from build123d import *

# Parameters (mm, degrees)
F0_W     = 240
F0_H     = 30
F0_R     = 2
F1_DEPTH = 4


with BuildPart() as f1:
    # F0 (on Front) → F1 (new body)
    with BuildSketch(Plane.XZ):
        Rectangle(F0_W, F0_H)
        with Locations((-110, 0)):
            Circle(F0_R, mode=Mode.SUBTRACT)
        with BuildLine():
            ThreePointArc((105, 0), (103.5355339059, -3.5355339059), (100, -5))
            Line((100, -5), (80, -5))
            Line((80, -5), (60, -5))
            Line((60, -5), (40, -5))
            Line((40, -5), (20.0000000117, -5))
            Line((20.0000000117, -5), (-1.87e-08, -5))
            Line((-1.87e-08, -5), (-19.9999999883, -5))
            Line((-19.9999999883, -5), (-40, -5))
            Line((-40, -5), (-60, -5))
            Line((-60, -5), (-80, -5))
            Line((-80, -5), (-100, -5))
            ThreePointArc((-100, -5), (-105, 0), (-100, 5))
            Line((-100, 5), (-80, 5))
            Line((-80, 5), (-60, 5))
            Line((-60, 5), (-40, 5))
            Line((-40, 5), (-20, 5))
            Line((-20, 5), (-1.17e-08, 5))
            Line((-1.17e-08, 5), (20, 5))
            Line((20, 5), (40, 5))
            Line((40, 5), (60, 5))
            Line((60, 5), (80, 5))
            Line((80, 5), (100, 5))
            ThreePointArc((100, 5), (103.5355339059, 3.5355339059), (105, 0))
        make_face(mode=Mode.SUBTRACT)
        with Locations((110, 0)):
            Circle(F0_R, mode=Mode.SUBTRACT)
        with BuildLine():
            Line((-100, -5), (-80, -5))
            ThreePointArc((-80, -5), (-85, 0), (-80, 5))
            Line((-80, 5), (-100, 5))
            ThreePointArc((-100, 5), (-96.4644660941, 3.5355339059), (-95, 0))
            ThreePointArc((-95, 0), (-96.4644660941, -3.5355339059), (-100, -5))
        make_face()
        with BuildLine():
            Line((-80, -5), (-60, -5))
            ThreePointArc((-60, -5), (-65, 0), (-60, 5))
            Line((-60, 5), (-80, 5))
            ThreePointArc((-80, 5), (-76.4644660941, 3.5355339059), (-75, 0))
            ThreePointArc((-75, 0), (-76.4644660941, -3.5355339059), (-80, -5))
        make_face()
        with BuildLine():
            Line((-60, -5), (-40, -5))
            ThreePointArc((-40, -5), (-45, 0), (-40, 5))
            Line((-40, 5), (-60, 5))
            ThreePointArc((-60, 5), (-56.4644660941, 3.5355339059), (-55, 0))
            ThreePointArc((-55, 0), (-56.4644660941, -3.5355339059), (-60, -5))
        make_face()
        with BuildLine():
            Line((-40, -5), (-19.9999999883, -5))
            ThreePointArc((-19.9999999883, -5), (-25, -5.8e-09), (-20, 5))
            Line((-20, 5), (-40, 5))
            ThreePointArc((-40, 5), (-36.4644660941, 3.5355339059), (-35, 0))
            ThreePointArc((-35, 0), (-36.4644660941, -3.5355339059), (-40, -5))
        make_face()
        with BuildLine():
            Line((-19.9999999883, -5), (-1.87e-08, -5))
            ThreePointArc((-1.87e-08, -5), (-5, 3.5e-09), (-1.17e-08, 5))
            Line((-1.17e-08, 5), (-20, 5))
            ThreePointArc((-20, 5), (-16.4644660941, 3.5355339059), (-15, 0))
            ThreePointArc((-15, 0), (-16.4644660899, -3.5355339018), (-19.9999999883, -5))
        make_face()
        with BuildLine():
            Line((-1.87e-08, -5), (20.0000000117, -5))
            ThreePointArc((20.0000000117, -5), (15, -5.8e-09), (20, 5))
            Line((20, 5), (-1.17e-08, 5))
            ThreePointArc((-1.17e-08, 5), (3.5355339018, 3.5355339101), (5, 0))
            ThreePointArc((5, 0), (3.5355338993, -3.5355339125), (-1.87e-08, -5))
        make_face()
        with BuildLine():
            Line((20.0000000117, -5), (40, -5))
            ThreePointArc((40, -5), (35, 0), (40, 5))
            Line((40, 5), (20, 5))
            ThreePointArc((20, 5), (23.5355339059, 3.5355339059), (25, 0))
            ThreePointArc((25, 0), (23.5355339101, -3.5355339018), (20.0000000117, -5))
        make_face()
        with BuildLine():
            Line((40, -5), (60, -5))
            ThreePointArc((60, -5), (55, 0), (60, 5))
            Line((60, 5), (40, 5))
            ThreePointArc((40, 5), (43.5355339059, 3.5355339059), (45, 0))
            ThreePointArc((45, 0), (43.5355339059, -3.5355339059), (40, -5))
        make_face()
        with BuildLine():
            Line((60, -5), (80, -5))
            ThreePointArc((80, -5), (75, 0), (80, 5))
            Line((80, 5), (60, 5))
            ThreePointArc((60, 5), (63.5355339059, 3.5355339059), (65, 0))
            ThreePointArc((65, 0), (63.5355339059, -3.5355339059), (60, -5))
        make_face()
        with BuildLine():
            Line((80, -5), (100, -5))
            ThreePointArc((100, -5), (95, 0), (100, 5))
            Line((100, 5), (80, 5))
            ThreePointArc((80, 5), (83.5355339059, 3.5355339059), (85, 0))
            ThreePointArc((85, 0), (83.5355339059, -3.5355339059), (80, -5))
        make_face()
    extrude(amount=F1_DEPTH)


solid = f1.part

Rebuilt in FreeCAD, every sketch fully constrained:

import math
import FreeCAD as App
import Part
import Sketcher

doc = App.newDocument("Part")
body = doc.addObject("PartDesign::Body", "Body")

sketch1 = body.newObject("Sketcher::SketchObject", "Sketch")
sketch1.AttachmentSupport = (doc.getObject("XZ_Plane"), [""])
sketch1.MapMode = "FlatFace"
sketch1.addGeometry(Part.LineSegment(App.Vector(-120, 15, 0), App.Vector(-120, -15, 0)), False)
sketch1.addGeometry(Part.LineSegment(App.Vector(-120, -15, 0), App.Vector(120, -15, 0)), False)
sketch1.addGeometry(Part.LineSegment(App.Vector(120, -15, 0), App.Vector(120, 15, 0)), False)
sketch1.addGeometry(Part.LineSegment(App.Vector(120, 15, 0), App.Vector(-120, 15, 0)), False)
sketch1.addGeometry(Part.Circle(App.Vector(-110, 0, 0), App.Vector(0, 0, 1), 2), False)
sketch1.addGeometry(Part.ArcOfCircle(Part.Circle(App.Vector(100, 0, 0), App.Vector(0, 0, 1), 5), math.radians(0), math.radians(90)), False)
sketch1.addGeometry(Part.ArcOfCircle(Part.Circle(App.Vector(100, 0, 0), App.Vector(0, 0, 1), 5), math.radians(-90), math.radians(0)), False)
sketch1.addGeometry(Part.ArcOfCircle(Part.Circle(App.Vector(100, 0, 0), App.Vector(0, 0, 1), 5), math.radians(90), math.radians(270)), False)
sketch1.addGeometry(Part.ArcOfCircle(Part.Circle(App.Vector(80, 0, 0), App.Vector(0, 0, 1), 5), math.radians(90), math.radians(270)), False)
sketch1.addGeometry(Part.ArcOfCircle(Part.Circle(App.Vector(80, 0, 0), App.Vector(0, 0, 1), 5), math.radians(0), math.radians(90)), False)
sketch1.addGeometry(Part.ArcOfCircle(Part.Circle(App.Vector(80, 0, 0), App.Vector(0, 0, 1), 5), math.radians(-90), math.radians(0)), False)
sketch1.addGeometry(Part.ArcOfCircle(Part.Circle(App.Vector(60, 0, 0), App.Vector(0, 0, 1), 5), math.radians(90), math.radians(270)), False)
sketch1.addGeometry(Part.ArcOfCircle(Part.Circle(App.Vector(60, 0, 0), App.Vector(0, 0, 1), 5), math.radians(0), math.radians(90)), False)
sketch1.addGeometry(Part.ArcOfCircle(Part.Circle(App.Vector(60, 0, 0), App.Vector(0, 0, 1), 5), math.radians(-90), math.radians(0)), False)
sketch1.addGeometry(Part.ArcOfCircle(Part.Circle(App.Vector(40, 0, 0), App.Vector(0, 0, 1), 5), math.radians(90), math.radians(270)), False)
sketch1.addGeometry(Part.ArcOfCircle(Part.Circle(App.Vector(40, 0, 0), App.Vector(0, 0, 1), 5), math.radians(0), math.radians(90)), False)
sketch1.addGeometry(Part.ArcOfCircle(Part.Circle(App.Vector(40, 0, 0), App.Vector(0, 0, 1), 5), math.radians(-90), math.radians(0)), False)
sketch1.addGeometry(Part.ArcOfCircle(Part.Circle(App.Vector(20, 0, 0), App.Vector(0, 0, 1), 5), math.radians(90), math.radians(270)), False)
sketch1.addGeometry(Part.ArcOfCircle(Part.Circle(App.Vector(20, 0, 0), App.Vector(0, 0, 1), 5), math.radians(0), math.radians(90)), False)
sketch1.addGeometry(Part.ArcOfCircle(Part.Circle(App.Vector(20, 0, 0), App.Vector(0, 0, 1), 5), math.radians(-90), math.radians(0)), False)
sketch1.addGeometry(Part.ArcOfCircle(Part.Circle(App.Vector(0, 0, 0), App.Vector(0, 0, 1), 5), math.radians(90), math.radians(270)), False)
sketch1.addGeometry(Part.ArcOfCircle(Part.Circle(App.Vector(0, 0, 0), App.Vector(0, 0, 1), 5), math.radians(0), math.radians(90)), False)
sketch1.addGeometry(Part.ArcOfCircle(Part.Circle(App.Vector(0, 0, 0), App.Vector(0, 0, 1), 5), math.radians(-90), math.radians(0)), False)
sketch1.addGeometry(Part.ArcOfCircle(Part.Circle(App.Vector(-20, 0, 0), App.Vector(0, 0, 1), 5), math.radians(90), math.radians(270)), False)
sketch1.addGeometry(Part.ArcOfCircle(Part.Circle(App.Vector(-20, 0, 0), App.Vector(0, 0, 1), 5), math.radians(0), math.radians(90)), False)
sketch1.addGeometry(Part.ArcOfCircle(Part.Circle(App.Vector(-20, 0, 0), App.Vector(0, 0, 1), 5), math.radians(-90), math.radians(0)), False)
sketch1.addGeometry(Part.ArcOfCircle(Part.Circle(App.Vector(-40, 0, 0), App.Vector(0, 0, 1), 5), math.radians(90), math.radians(270)), False)
sketch1.addGeometry(Part.ArcOfCircle(Part.Circle(App.Vector(-40, 0, 0), App.Vector(0, 0, 1), 5), math.radians(0), math.radians(90)), False)
sketch1.addGeometry(Part.ArcOfCircle(Part.Circle(App.Vector(-40, 0, 0), App.Vector(0, 0, 1), 5), math.radians(-90), math.radians(0)), False)
sketch1.addGeometry(Part.ArcOfCircle(Part.Circle(App.Vector(-60, 0, 0), App.Vector(0, 0, 1), 5), math.radians(90), math.radians(270)), False)
sketch1.addGeometry(Part.ArcOfCircle(Part.Circle(App.Vector(-60, 0, 0), App.Vector(0, 0, 1), 5), math.radians(0), math.radians(90)), False)
sketch1.addGeometry(Part.ArcOfCircle(Part.Circle(App.Vector(-60, 0, 0), App.Vector(0, 0, 1), 5), math.radians(-90), math.radians(0)), False)
sketch1.addGeometry(Part.ArcOfCircle(Part.Circle(App.Vector(-80, 0, 0), App.Vector(0, 0, 1), 5), math.radians(90), math.radians(270)), False)
sketch1.addGeometry(Part.ArcOfCircle(Part.Circle(App.Vector(-80, 0, 0), App.Vector(0, 0, 1), 5), math.radians(0), math.radians(90)), False)
sketch1.addGeometry(Part.ArcOfCircle(Part.Circle(App.Vector(-80, 0, 0), App.Vector(0, 0, 1), 5), math.radians(-90), math.radians(0)), False)
sketch1.addGeometry(Part.ArcOfCircle(Part.Circle(App.Vector(-100, 0, 0), App.Vector(0, 0, 1), 5), math.radians(90), math.radians(270)), False)
sketch1.addGeometry(Part.ArcOfCircle(Part.Circle(App.Vector(-100, 0, 0), App.Vector(0, 0, 1), 5), math.radians(0), math.radians(90)), False)
sketch1.addGeometry(Part.ArcOfCircle(Part.Circle(App.Vector(-100, 0, 0), App.Vector(0, 0, 1), 5), math.radians(-90), math.radians(0)), False)
sketch1.addGeometry(Part.Circle(App.Vector(110, 0, 0), App.Vector(0, 0, 1), 2), False)
sketch1.addConstraint(Sketcher.Constraint("Coincident", 0, 2, 1, 1))
sketch1.addConstraint(Sketcher.Constraint("Coincident", 1, 2, 2, 1))
sketch1.addConstraint(Sketcher.Constraint("Coincident", 2, 2, 3, 1))
sketch1.addConstraint(Sketcher.Constraint("Coincident", 3, 2, 0, 1))
sketch1.addConstraint(Sketcher.Constraint("Tangent", 5, 1, 6, 2))
sketch1.addConstraint(Sketcher.Constraint("Tangent", 6, 1, 7, 2))
sketch1.addConstraint(Sketcher.Constraint("Tangent", 7, 1, 5, 2))
sketch1.addConstraint(Sketcher.Constraint("Tangent", 8, 1, 9, 2))
sketch1.addConstraint(Sketcher.Constraint("Tangent", 9, 1, 10, 2))
sketch1.addConstraint(Sketcher.Constraint("Tangent", 10, 1, 8, 2))
sketch1.addConstraint(Sketcher.Constraint("Tangent", 11, 1, 12, 2))
sketch1.addConstraint(Sketcher.Constraint("Tangent", 12, 1, 13, 2))
sketch1.addConstraint(Sketcher.Constraint("Tangent", 13, 1, 11, 2))
sketch1.addConstraint(Sketcher.Constraint("Tangent", 14, 1, 15, 2))
sketch1.addConstraint(Sketcher.Constraint("Tangent", 15, 1, 16, 2))
sketch1.addConstraint(Sketcher.Constraint("Tangent", 16, 1, 14, 2))
sketch1.addConstraint(Sketcher.Constraint("Tangent", 17, 1, 18, 2))
sketch1.addConstraint(Sketcher.Constraint("Tangent", 18, 1, 19, 2))
sketch1.addConstraint(Sketcher.Constraint("Tangent", 19, 1, 17, 2))
sketch1.addConstraint(Sketcher.Constraint("Tangent", 20, 1, 21, 2))
sketch1.addConstraint(Sketcher.Constraint("Tangent", 21, 1, 22, 2))
sketch1.addConstraint(Sketcher.Constraint("Tangent", 22, 1, 20, 2))
sketch1.addConstraint(Sketcher.Constraint("Tangent", 23, 1, 24, 2))
sketch1.addConstraint(Sketcher.Constraint("Tangent", 24, 1, 25, 2))
sketch1.addConstraint(Sketcher.Constraint("Tangent", 25, 1, 23, 2))
sketch1.addConstraint(Sketcher.Constraint("Tangent", 26, 1, 27, 2))
sketch1.addConstraint(Sketcher.Constraint("Tangent", 27, 1, 28, 2))
sketch1.addConstraint(Sketcher.Constraint("Tangent", 28, 1, 26, 2))
sketch1.addConstraint(Sketcher.Constraint("Tangent", 29, 1, 30, 2))
sketch1.addConstraint(Sketcher.Constraint("Tangent", 30, 1, 31, 2))
sketch1.addConstraint(Sketcher.Constraint("Tangent", 31, 1, 29, 2))
sketch1.addConstraint(Sketcher.Constraint("Tangent", 32, 1, 33, 2))
sketch1.addConstraint(Sketcher.Constraint("Tangent", 33, 1, 34, 2))
sketch1.addConstraint(Sketcher.Constraint("Tangent", 34, 1, 32, 2))
sketch1.addConstraint(Sketcher.Constraint("Tangent", 35, 1, 36, 2))
sketch1.addConstraint(Sketcher.Constraint("Tangent", 36, 1, 37, 2))
sketch1.addConstraint(Sketcher.Constraint("Tangent", 37, 1, 35, 2))
sketch1.addConstraint(Sketcher.Constraint("Vertical", 0))
sketch1.addConstraint(Sketcher.Constraint("Horizontal", 1))
sketch1.addConstraint(Sketcher.Constraint("Vertical", 2))
sketch1.addConstraint(Sketcher.Constraint("Horizontal", 3))
sketch1.addConstraint(Sketcher.Constraint("Coincident", 20, 3, -1, 1))
sketch1.addConstraint(Sketcher.Constraint("Equal", 7, 8))
sketch1.addConstraint(Sketcher.Constraint("Equal", 10, 11))
sketch1.addConstraint(Sketcher.Constraint("Equal", 13, 14))
sketch1.addConstraint(Sketcher.Constraint("Equal", 16, 17))
sketch1.addConstraint(Sketcher.Constraint("Equal", 19, 20))
sketch1.addConstraint(Sketcher.Constraint("Equal", 22, 23))
sketch1.addConstraint(Sketcher.Constraint("Equal", 25, 26))
sketch1.addConstraint(Sketcher.Constraint("Equal", 28, 29))
sketch1.addConstraint(Sketcher.Constraint("Equal", 31, 32))
sketch1.addConstraint(Sketcher.Constraint("Equal", 34, 35))
sketch1.addConstraint(Sketcher.Constraint("Equal", 4, 38))
sketch1.addConstraint(Sketcher.Constraint("Symmetric", 17, 3, 23, 3, -1, 1))
sketch1.addConstraint(Sketcher.Constraint("Symmetric", 14, 3, 26, 3, -1, 1))
sketch1.addConstraint(Sketcher.Constraint("Symmetric", 11, 3, 29, 3, -1, 1))
sketch1.addConstraint(Sketcher.Constraint("Symmetric", 8, 3, 32, 3, -1, 1))
sketch1.addConstraint(Sketcher.Constraint("Symmetric", 5, 3, 35, 3, -1, 1))
sketch1.addConstraint(Sketcher.Constraint("Symmetric", 4, 3, 38, 3, -1, 1))
sketch1.addConstraint(Sketcher.Constraint("Symmetric", 0, 2, 2, 2, -1, 1))
sketch1.addConstraint(Sketcher.Constraint("Symmetric", 17, 1, 23, 1, -2))
sketch1.addConstraint(Sketcher.Constraint("Symmetric", 14, 1, 26, 1, -2))
sketch1.addConstraint(Sketcher.Constraint("Symmetric", 11, 1, 29, 1, -2))
sketch1.addConstraint(Sketcher.Constraint("Symmetric", 8, 1, 32, 1, -2))
sketch1.addConstraint(Sketcher.Constraint("Symmetric", 7, 1, 35, 1, -2))
sketch1.addConstraint(Sketcher.Constraint("PointOnObject", 4, 3, -1))
sketch1.addConstraint(Sketcher.Constraint("PointOnObject", 5, 1, -1))
sketch1.addConstraint(Sketcher.Constraint("PointOnObject", 9, 1, -1))
sketch1.addConstraint(Sketcher.Constraint("PointOnObject", 12, 1, -1))
sketch1.addConstraint(Sketcher.Constraint("PointOnObject", 15, 1, -1))
sketch1.addConstraint(Sketcher.Constraint("PointOnObject", 18, 1, -1))
sketch1.addConstraint(Sketcher.Constraint("PointOnObject", 20, 1, -2))
sketch1.addConstraint(Sketcher.Constraint("PointOnObject", 21, 1, -1))
sketch1.addConstraint(Sketcher.Constraint("PointOnObject", 22, 1, -2))
sketch1.addConstraint(Sketcher.Constraint("PointOnObject", 24, 1, -1))
sketch1.addConstraint(Sketcher.Constraint("PointOnObject", 27, 1, -1))
sketch1.addConstraint(Sketcher.Constraint("PointOnObject", 30, 1, -1))
sketch1.addConstraint(Sketcher.Constraint("PointOnObject", 33, 1, -1))
sketch1.addConstraint(Sketcher.Constraint("PointOnObject", 36, 1, -1))
sketch1.addConstraint(Sketcher.Constraint("Vertical", 7, 3, 6, 1))
sketch1.addConstraint(Sketcher.Constraint("Vertical", 6, 1, 7, 1))
sketch1.addConstraint(Sketcher.Constraint("Vertical", 10, 3, 8, 1))
sketch1.addConstraint(Sketcher.Constraint("Vertical", 8, 1, 10, 1))
sketch1.addConstraint(Sketcher.Constraint("Vertical", 13, 3, 11, 1))
sketch1.addConstraint(Sketcher.Constraint("Vertical", 11, 1, 13, 1))
sketch1.addConstraint(Sketcher.Constraint("Vertical", 16, 3, 14, 1))
sketch1.addConstraint(Sketcher.Constraint("Vertical", 14, 1, 16, 1))
sketch1.addConstraint(Sketcher.Constraint("Vertical", 19, 3, 17, 1))
sketch1.addConstraint(Sketcher.Constraint("Vertical", 17, 1, 19, 1))
sketch1.addConstraint(Sketcher.Constraint("Vertical", 23, 1, 25, 1))
sketch1.addConstraint(Sketcher.Constraint("Vertical", 26, 1, 28, 1))
sketch1.addConstraint(Sketcher.Constraint("Vertical", 29, 1, 31, 1))
sketch1.addConstraint(Sketcher.Constraint("Vertical", 32, 1, 34, 1))
sketch1.addConstraint(Sketcher.Constraint("Vertical", 35, 1, 37, 1))
sketch1.addConstraint(Sketcher.Constraint("Diameter", 4, 4.0))
sketch1.addConstraint(Sketcher.Constraint("Radius", 5, 5.0))
sketch1.addConstraint(Sketcher.Constraint("DistanceX", 1, 1, 1, 2, 240.0))
sketch1.addConstraint(Sketcher.Constraint("DistanceY", 0, 2, 0, 1, 30.0))
sketch1.addConstraint(Sketcher.Constraint("DistanceX", 4, 3, -1, 1, 110.0))
sketch1.addConstraint(Sketcher.Constraint("DistanceX", -1, 1, 5, 3, 100.0))
sketch1.addConstraint(Sketcher.Constraint("DistanceX", -1, 1, 8, 3, 80.0))
sketch1.addConstraint(Sketcher.Constraint("DistanceX", -1, 1, 11, 3, 60.0))
sketch1.addConstraint(Sketcher.Constraint("DistanceX", -1, 1, 14, 3, 40.0))
sketch1.addConstraint(Sketcher.Constraint("DistanceX", -1, 1, 17, 3, 20.0))
pad1 = body.newObject("PartDesign::Pad", "Pad")
pad1.Profile = sketch1
pad1.Length = 4

doc.recompute()
